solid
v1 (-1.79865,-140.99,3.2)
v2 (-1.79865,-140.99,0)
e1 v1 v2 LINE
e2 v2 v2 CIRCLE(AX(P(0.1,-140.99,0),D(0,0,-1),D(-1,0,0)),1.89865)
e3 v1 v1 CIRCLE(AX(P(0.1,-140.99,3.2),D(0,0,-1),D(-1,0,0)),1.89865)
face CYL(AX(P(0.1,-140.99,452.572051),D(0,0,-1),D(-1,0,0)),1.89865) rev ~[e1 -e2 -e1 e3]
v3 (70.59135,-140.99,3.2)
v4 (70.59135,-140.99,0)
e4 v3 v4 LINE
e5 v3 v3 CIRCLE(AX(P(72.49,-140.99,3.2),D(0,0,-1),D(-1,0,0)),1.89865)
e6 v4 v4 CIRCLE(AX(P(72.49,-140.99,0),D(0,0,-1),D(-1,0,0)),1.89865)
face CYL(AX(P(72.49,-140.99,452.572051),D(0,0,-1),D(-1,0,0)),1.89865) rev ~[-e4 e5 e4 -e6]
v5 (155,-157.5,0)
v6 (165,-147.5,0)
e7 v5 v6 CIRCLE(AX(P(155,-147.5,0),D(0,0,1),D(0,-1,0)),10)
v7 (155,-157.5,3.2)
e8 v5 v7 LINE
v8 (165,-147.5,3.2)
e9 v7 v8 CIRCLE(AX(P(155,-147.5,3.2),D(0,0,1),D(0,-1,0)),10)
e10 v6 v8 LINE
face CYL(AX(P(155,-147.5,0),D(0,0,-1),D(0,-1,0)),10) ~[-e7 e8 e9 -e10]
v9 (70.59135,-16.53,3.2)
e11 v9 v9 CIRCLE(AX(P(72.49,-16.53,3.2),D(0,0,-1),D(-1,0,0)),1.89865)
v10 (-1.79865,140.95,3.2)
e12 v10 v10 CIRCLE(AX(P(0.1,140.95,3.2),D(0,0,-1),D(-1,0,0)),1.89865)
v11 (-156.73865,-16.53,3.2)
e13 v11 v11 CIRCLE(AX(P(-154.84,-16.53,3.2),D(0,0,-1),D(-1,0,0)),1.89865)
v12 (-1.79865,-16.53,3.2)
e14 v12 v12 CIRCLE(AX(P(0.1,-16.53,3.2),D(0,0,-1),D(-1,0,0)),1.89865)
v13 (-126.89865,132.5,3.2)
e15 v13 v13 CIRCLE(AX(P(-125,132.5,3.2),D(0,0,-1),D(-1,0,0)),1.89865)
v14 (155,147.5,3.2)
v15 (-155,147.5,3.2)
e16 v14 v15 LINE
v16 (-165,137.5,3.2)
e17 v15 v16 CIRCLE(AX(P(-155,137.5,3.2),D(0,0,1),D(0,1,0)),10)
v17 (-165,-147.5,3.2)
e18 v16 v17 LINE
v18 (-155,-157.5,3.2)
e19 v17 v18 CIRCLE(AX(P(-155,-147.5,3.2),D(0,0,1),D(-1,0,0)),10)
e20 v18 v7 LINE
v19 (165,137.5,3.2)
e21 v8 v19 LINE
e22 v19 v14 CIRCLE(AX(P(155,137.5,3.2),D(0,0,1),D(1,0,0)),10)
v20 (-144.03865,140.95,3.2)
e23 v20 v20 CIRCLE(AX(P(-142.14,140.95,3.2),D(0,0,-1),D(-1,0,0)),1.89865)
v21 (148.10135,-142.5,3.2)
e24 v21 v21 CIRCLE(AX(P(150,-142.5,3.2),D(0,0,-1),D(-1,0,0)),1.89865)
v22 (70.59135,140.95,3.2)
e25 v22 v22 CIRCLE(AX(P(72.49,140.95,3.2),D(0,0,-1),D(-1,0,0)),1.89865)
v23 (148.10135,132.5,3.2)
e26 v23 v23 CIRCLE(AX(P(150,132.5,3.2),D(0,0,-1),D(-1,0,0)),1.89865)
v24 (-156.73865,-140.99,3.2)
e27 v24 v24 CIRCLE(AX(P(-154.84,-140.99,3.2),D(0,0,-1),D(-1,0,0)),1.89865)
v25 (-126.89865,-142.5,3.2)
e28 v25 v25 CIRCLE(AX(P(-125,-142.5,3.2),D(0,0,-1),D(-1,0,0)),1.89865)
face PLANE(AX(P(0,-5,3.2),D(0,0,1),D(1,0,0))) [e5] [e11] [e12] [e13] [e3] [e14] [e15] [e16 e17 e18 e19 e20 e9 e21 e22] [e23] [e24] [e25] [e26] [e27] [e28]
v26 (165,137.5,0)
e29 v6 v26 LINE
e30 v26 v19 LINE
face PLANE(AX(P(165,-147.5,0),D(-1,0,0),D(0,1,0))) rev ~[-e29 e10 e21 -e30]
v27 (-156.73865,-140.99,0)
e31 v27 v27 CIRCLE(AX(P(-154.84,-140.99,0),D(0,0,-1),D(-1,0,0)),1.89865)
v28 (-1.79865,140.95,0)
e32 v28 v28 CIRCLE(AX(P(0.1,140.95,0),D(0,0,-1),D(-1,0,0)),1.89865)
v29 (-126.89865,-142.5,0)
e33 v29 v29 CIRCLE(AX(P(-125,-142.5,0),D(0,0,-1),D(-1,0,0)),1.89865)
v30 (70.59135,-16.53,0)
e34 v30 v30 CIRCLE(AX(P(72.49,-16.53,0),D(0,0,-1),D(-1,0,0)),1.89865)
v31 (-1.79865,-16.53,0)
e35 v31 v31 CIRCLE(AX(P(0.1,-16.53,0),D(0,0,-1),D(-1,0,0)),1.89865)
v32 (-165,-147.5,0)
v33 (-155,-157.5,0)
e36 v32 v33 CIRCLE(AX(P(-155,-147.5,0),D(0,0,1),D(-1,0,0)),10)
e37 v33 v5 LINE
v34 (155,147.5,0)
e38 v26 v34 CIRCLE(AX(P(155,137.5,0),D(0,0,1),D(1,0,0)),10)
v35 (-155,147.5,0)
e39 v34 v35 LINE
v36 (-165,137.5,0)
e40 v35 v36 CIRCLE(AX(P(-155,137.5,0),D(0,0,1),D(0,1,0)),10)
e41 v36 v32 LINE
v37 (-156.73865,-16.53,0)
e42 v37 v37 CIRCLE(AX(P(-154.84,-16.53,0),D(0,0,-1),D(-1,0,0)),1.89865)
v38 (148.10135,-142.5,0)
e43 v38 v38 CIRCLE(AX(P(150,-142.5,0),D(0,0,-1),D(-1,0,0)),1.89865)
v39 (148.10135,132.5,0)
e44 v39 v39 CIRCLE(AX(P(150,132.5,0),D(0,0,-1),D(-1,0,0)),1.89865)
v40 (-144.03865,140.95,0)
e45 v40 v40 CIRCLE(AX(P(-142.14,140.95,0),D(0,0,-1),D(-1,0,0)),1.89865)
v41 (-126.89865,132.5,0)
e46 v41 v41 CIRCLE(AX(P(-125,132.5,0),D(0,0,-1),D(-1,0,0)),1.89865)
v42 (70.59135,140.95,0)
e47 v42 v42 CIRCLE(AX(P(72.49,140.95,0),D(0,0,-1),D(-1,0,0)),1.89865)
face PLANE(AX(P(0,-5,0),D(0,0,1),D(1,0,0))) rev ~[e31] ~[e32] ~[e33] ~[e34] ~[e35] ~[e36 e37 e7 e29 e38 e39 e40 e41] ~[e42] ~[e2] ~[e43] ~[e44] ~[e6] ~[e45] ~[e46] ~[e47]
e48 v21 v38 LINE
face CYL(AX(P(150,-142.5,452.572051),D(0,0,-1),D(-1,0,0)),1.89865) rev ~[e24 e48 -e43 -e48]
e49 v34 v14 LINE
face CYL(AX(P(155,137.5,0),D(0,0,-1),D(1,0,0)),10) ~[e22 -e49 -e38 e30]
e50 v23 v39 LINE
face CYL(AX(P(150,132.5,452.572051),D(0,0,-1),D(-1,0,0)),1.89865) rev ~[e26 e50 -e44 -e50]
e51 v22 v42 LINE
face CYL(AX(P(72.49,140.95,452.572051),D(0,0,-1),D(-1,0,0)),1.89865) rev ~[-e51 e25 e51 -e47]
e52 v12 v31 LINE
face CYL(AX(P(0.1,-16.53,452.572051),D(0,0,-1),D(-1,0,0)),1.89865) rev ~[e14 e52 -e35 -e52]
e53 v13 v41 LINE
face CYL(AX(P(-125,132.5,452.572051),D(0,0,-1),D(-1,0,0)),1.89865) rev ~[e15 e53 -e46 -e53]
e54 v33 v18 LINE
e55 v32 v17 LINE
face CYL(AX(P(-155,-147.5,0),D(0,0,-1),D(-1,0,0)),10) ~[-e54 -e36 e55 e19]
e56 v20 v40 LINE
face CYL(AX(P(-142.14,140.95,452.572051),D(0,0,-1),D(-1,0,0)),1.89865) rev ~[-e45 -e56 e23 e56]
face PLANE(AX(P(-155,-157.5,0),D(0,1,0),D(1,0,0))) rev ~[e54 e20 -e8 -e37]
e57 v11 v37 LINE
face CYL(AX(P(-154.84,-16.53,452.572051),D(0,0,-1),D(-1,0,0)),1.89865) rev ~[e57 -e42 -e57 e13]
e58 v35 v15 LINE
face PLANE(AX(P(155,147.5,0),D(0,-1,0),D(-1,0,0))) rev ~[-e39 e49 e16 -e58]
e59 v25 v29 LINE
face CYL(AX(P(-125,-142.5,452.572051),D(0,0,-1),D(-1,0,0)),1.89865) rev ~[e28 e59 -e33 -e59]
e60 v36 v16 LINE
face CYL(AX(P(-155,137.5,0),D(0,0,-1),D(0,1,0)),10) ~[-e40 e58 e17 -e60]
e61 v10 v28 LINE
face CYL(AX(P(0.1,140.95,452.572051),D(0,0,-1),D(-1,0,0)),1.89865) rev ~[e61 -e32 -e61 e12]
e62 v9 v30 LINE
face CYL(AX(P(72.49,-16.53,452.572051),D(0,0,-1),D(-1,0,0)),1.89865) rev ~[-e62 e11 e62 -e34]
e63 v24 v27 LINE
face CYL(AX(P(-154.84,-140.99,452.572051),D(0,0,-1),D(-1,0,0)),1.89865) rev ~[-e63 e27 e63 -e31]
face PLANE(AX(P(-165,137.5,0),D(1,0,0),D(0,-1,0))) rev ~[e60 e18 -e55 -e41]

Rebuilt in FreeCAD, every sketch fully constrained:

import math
import FreeCAD as App
import Part
import Sketcher

doc = App.newDocument("Part")
body = doc.addObject("PartDesign::Body", "Body")

sketch1 = body.newObject("Sketcher::SketchObject", "Sketch")
sketch1.AttachmentSupport = (doc.getObject("XY_Plane"), [""])
sketch1.MapMode = "FlatFace"
sketch1.addGeometry(Part.ArcOfCircle(Part.Circle(App.Vector(155, 138, 0), App.Vector(0, 0, 1), 10), math.radians(0), math.radians(90)), False)
sketch1.addGeometry(Part.LineSegment(App.Vector(155, 148, 0), App.Vector(-155, 148, 0)), False)
sketch1.addGeometry(Part.ArcOfCircle(Part.Circle(App.Vector(-155, 138, 0), App.Vector(0, 0, 1), 10), math.radians(90), math.radians(180)), False)
sketch1.addGeometry(Part.LineSegment(App.Vector(-165, 138, 0), App.Vector(-165, -148, 0)), False)
sketch1.addGeometry(Part.ArcOfCircle(Part.Circle(App.Vector(-155, -148, 0), App.Vector(0, 0, 1), 10), math.radians(180), math.radians(270)), False)
sketch1.addGeometry(Part.LineSegment(App.Vector(-155, -158, 0), App.Vector(155, -158, 0)), False)
sketch1.addGeometry(Part.ArcOfCircle(Part.Circle(App.Vector(155, -148, 0), App.Vector(0, 0, 1), 10), math.radians(-90), math.radians(0)), False)
sketch1.addGeometry(Part.LineSegment(App.Vector(165, -148, 0), App.Vector(165, 138, 0)), False)
sketch1.addConstraint(Sketcher.Constraint("Tangent", 0, 2, 1, 1))
sketch1.addConstraint(Sketcher.Constraint("Tangent", 1, 2, 2, 1))
sketch1.addConstraint(Sketcher.Constraint("Tangent", 2, 2, 3, 1))
sketch1.addConstraint(Sketcher.Constraint("Tangent", 3, 2, 4, 1))
sketch1.addConstraint(Sketcher.Constraint("Tangent", 4, 2, 5, 1))
sketch1.addConstraint(Sketcher.Constraint("Tangent", 5, 2, 6, 1))
sketch1.addConstraint(Sketcher.Constraint("Tangent", 6, 2, 7, 1))
sketch1.addConstraint(Sketcher.Constraint("Tangent", 7, 2, 0, 1))
sketch1.addConstraint(Sketcher.Constraint("Horizontal", 1))
sketch1.addConstraint(Sketcher.Constraint("Vertical", 3))
sketch1.addConstraint(Sketcher.Constraint("Horizontal", 5))
sketch1.addConstraint(Sketcher.Constraint("Vertical", 7))
sketch1.addConstraint(Sketcher.Constraint("Equal", 0, 2))
sketch1.addConstraint(Sketcher.Constraint("Equal", 2, 4))
sketch1.addConstraint(Sketcher.Constraint("Equal", 4, 6))
sketch1.addConstraint(Sketcher.Constraint("Radius", 0, 10.0))
sketch1.addConstraint(Sketcher.Constraint("DistanceX", 1, 2, 1, 1, 310.0))
sketch1.addConstraint(Sketcher.Constraint("DistanceY", 3, 2, 3, 1, 285.0))
sketch1.addConstraint(Sketcher.Constraint("DistanceX", -1, 1, 0, 3, 155.0))
sketch1.addConstraint(Sketcher.Constraint("DistanceY", -1, 1, 0, 3, 137.5))
pad1 = body.newObject("PartDesign::Pad", "Pad")
pad1.Profile = sketch1
pad1.Length = 3.2

sketch2 = body.newObject("Sketcher::SketchObject", "Sketch001")
sketch2.AttachmentSupport = (doc.getObject("XY_Plane"), [""])
sketch2.MapMode = "FlatFace"
sketch2.AttachmentOffset = App.Placement(App.Vector(0, 0, 3.2), App.Rotation())
sketch2.addGeometry(Part.Circle(App.Vector(-125, 132.5, 0), App.Vector(0, 0, 1), 1.9), False)
sketch2.addGeometry(Part.Circle(App.Vector(150, 132.5, 0), App.Vector(0, 0, 1), 1.9), False)
sketch2.addGeometry(Part.Circle(App.Vector(150, -142.5, 0), App.Vector(0, 0, 1), 1.9), False)
sketch2.addGeometry(Part.Circle(App.Vector(-125, -142.5, 0), App.Vector(0, 0, 1), 1.9), False)
sketch2.addConstraint(Sketcher.Constraint("Equal", 0, 1))
sketch2.addConstraint(Sketcher.Constraint("Equal", 1, 2))
sketch2.addConstraint(Sketcher.Constraint("Equal", 2, 3))
sketch2.addConstraint(Sketcher.Constraint("Horizontal", 0, 3, 1, 3))
sketch2.addConstraint(Sketcher.Constraint("Horizontal", 2, 3, 3, 3))
sketch2.addConstraint(Sketcher.Constraint("Vertical", 1, 3, 2, 3))
sketch2.addConstraint(Sketcher.Constraint("Vertical", 0, 3, 3, 3))
sketch2.addConstraint(Sketcher.Constraint("DistanceX", 0, 3, -1, 1, 125.0))
sketch2.addConstraint(Sketcher.Constraint("DistanceX", -1, 1, 1, 3, 150.0))
sketch2.addConstraint(Sketcher.Constraint("DistanceY", 2, 3, 1, 3, 275.0))
sketch2.addConstraint(Sketcher.Constraint("Diameter", 0, 3.7973))
sketch2.addConstraint(Sketcher.Constraint("DistanceY", -1, 1, 0, 3, 132.5))
doc.recompute()
hole = body.newObject("PartDesign::Hole", "Hole")
hole.Profile = sketch2
hole.ThreadType = "None"
hole.Diameter = 3.7973
hole.DepthType = "ThroughAll"

sketch3 = body.newObject("Sketcher::SketchObject", "Sketch002")
sketch3.AttachmentSupport = (doc.getObject("XY_Plane"), [""])
sketch3.MapMode = "FlatFace"
sketch3.AttachmentOffset = App.Placement(App.Vector(0, 0, 3.2), App.Rotation())
sketch3.addGeometry(Part.Circle(App.Vector(-142.1, 140.9, 0), App.Vector(0, 0, 1), 1.9), False)
sketch3.addGeometry(Part.Circle(App.Vector(0.1, 140.9, 0), App.Vector(0, 0, 1), 1.9), False)
sketch3.addGeometry(Part.Circle(App.Vector(72.5, 140.9, 0), App.Vector(0, 0, 1), 1.9), False)
sketch3.addGeometry(Part.Circle(App.Vector(-154.8, -16.5, 0), App.Vector(0, 0, 1), 1.9), False)
sketch3.addGeometry(Part.Circle(App.Vector(0.1, -16.5, 0), App.Vector(0, 0, 1), 1.9), False)
sketch3.addGeometry(Part.Circle(App.Vector(72.5, -16.5, 0), App.Vector(0, 0, 1), 1.9), False)
sketch3.addGeometry(Part.Circle(App.Vector(72.5, -141, 0), App.Vector(0, 0, 1), 1.9), False)
sketch3.addGeometry(Part.Circle(App.Vector(0.1, -141, 0), App.Vector(0, 0, 1), 1.9), False)
sketch3.addGeometry(Part.Circle(App.Vector(-154.8, -141, 0), App.Vector(0, 0, 1), 1.9), False)
sketch3.addConstraint(Sketcher.Constraint("Equal", 0, 1))
sketch3.addConstraint(Sketcher.Constraint("Equal", 1, 2))
sketch3.addConstraint(Sketcher.Constraint("Equal", 2, 3))
sketch3.addConstraint(Sketcher.Constraint("Equal", 3, 4))
sketch3.addConstraint(Sketcher.Constraint("Equal", 4, 5))
sketch3.addConstraint(Sketcher.Constraint("Equal", 5, 6))
sketch3.addConstraint(Sketcher.Constraint("Equal", 6, 7))
sketch3.addConstraint(Sketcher.Constraint("Equal", 7, 8))
sketch3.addConstraint(Sketcher.Constraint("Horizontal", 0, 3, 1, 3))
sketch3.addConstraint(Sketcher.Constraint("Horizontal", 1, 3, 2, 3))
sketch3.addConstraint(Sketcher.Constraint("Horizontal", 3, 3, 4, 3))
sketch3.addConstraint(Sketcher.Constraint("Horizontal", 4, 3, 5, 3))
sketch3.addConstraint(Sketcher.Constraint("Horizontal", 6, 3, 7, 3))
sketch3.addConstraint(Sketcher.Constraint("Horizontal", 7, 3, 8, 3))
sketch3.addConstraint(Sketcher.Constraint("Vertical", 1, 3, 4, 3))
sketch3.addConstraint(Sketcher.Constraint("Vertical", 2, 3, 5, 3))
sketch3.addConstraint(Sketcher.Constraint("Vertical", 5, 3, 6, 3))
sketch3.addConstraint(Sketcher.Constraint("Vertical", 4, 3, 7, 3))
sketch3.addConstraint(Sketcher.Constraint("Vertical", 3, 3, 8, 3))
sketch3.addConstraint(Sketcher.Constraint("Diameter", 0, 3.7973))
sketch3.addConstraint(Sketcher.Constraint("DistanceX", -1, 1, 1, 3, 0.1))
sketch3.addConstraint(Sketcher.Constraint("DistanceX", 3, 3, 0, 3, 12.7))
sketch3.addConstraint(Sketcher.Constraint("DistanceX", 0, 3, -1, 1, 142.14))
sketch3.addConstraint(Sketcher.Constraint("DistanceY", -1, 1, 0, 3, 140.95))
sketch3.addConstraint(Sketcher.Constraint("DistanceX", -1, 1, 2, 3, 72.49))
sketch3.addConstraint(Sketcher.Constraint("DistanceY", 3, 3, -1, 1, 16.53))
sketch3.addConstraint(Sketcher.Constraint("DistanceY", 6, 3, -1, 1, 140.99))
doc.recompute()
hole2 = body.newObject("PartDesign::Hole", "Hole001")
hole2.Profile = sketch3
hole2.ThreadType = "None"
hole2.Diameter = 3.7973
hole2.DepthType = "ThroughAll"

doc.recompute()
